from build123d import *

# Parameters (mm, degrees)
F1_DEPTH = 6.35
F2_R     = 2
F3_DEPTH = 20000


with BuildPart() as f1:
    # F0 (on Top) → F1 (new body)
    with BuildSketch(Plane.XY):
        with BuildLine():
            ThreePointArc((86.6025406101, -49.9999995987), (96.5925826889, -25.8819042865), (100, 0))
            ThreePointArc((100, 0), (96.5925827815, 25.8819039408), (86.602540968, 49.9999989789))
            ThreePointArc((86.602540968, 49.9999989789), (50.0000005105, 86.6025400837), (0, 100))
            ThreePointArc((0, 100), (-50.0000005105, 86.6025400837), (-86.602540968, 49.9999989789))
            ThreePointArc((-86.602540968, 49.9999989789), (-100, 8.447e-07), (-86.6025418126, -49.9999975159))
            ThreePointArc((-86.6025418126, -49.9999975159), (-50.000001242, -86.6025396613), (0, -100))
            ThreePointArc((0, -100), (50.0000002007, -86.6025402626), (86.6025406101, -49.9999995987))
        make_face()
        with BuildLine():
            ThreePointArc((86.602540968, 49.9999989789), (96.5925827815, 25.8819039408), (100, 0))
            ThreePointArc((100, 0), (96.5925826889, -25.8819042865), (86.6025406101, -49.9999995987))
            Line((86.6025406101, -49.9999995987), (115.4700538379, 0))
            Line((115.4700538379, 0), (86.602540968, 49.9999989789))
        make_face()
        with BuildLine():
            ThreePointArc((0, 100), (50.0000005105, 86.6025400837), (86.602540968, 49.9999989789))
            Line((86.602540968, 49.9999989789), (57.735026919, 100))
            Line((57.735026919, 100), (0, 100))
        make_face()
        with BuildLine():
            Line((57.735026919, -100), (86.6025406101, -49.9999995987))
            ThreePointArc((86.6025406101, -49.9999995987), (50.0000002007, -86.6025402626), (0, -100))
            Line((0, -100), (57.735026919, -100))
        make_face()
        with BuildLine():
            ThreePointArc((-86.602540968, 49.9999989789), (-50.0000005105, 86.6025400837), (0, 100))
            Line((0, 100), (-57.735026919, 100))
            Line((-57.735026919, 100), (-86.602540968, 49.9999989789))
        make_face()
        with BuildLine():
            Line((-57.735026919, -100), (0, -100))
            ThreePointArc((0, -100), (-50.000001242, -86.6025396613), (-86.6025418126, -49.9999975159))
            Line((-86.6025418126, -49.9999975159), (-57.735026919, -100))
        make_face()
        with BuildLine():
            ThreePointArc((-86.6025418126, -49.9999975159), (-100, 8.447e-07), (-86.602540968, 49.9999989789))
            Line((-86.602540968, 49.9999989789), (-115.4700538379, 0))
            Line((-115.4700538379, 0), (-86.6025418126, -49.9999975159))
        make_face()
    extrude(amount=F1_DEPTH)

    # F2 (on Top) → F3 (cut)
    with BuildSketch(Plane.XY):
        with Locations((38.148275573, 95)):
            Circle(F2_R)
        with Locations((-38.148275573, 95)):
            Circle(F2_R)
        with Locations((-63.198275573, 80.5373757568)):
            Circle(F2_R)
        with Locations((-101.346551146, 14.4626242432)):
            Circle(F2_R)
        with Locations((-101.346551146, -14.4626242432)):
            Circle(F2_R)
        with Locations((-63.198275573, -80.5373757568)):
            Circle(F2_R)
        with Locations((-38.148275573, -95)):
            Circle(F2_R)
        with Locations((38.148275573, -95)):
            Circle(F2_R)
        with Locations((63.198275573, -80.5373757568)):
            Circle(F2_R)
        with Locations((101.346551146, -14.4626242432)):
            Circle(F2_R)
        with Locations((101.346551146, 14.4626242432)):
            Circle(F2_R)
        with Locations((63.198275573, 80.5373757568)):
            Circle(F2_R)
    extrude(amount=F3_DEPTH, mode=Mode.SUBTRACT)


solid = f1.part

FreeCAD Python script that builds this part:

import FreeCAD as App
import Part
import Sketcher
Q = App.Units.Quantity


def add_polygon(sketch, points):
    """Adds a closed chain of lines whose ends are joined by coincident constraints."""
    first, n = sketch.GeometryCount, len(points)
    for a, b in zip(points, points[1:] + points[:1]):
        sketch.addGeometry(Part.LineSegment(App.Vector(*a, 0), App.Vector(*b, 0)), False)
    for i in range(n):
        sketch.addConstraint(Sketcher.Constraint("Coincident", first + i, 2, first + (i + 1) % n, 1))

doc = App.newDocument("Part")
body = doc.addObject("PartDesign::Body", "Body")

# Sketch on XY plane
sketch1 = body.newObject("Sketcher::SketchObject", "Sketch")
sketch1.AttachmentSupport = (doc.getObject("XY_Plane"), [""])
sketch1.MapMode = "FlatFace"
add_polygon(sketch1, [(-86.602542, -49.999998), (-57.735027, -100), (57.735027, -100), (86.602541, -50), (115.470054, 0), (57.735027, 100), (-57.735027, 100), (-115.470054, 0)])  # lines 0-7
sketch1.addConstraint(Sketcher.Constraint("Horizontal", 1))
sketch1.addConstraint(Sketcher.Constraint("Horizontal", 5))
sketch1.addConstraint(Sketcher.Constraint("Symmetric", 0, 2, 4, 2, -1, 1))
sketch1.addConstraint(Sketcher.Constraint("Symmetric", 3, 2, 6, 2, -1, 1))
sketch1.addConstraint(Sketcher.Constraint("Symmetric", 2, 2, 7, 2, -2))
sketch1.addConstraint(Sketcher.Constraint("PointOnObject", 3, 2, -1))
sketch1.addConstraint(Sketcher.Constraint("Parallel", 2, 3))
sketch1.addConstraint(Sketcher.Constraint("Parallel", 0, 4))
sketch1.addConstraint(Sketcher.Constraint("Parallel", 3, 6))
sketch1.addConstraint(Sketcher.Constraint("Equal", 2, 3))
sketch1.addConstraint(Sketcher.Constraint("Angle", 0, Q("-60 deg")))
sketch1.addConstraint(Sketcher.Constraint("DistanceY", 0, 2, -1, 1, 100.0))
sketch1.addConstraint(Sketcher.Constraint("DistanceX", 1, 1, 1, 2, 115.470054))
pad1 = body.newObject("PartDesign::Pad", "Pad")
pad1.Profile = sketch1
pad1.Length = 6.35

# Sketch on XY plane
sketch2 = body.newObject("Sketcher::SketchObject", "Sketch001")
sketch2.AttachmentSupport = (doc.getObject("XY_Plane"), [""])
sketch2.MapMode = "FlatFace"
sketch2.addGeometry(Part.Circle(App.Vector(38.148276, 95, 0), App.Vector(0, 0, 1), 2), False)
sketch2.addGeometry(Part.Circle(App.Vector(-38.148276, 95, 0), App.Vector(0, 0, 1), 2), False)
sketch2.addGeometry(Part.Circle(App.Vector(-63.198276, 80.537376, 0), App.Vector(0, 0, 1), 2), False)
sketch2.addGeometry(Part.Circle(App.Vector(-101.346551, 14.462624, 0), App.Vector(0, 0, 1), 2), False)
sketch2.addGeometry(Part.Circle(App.Vector(-101.346551, -14.462624, 0), App.Vector(0, 0, 1), 2), False)
sketch2.addGeometry(Part.Circle(App.Vector(-63.198276, -80.537376, 0), App.Vector(0, 0, 1), 2), False)
sketch2.addGeometry(Part.Circle(App.Vector(-38.148276, -95, 0), App.Vector(0, 0, 1), 2), False)
sketch2.addGeometry(Part.Circle(App.Vector(38.148276, -95, 0), App.Vector(0, 0, 1), 2), False)
sketch2.addGeometry(Part.Circle(App.Vector(63.198276, -80.537376, 0), App.Vector(0, 0, 1), 2), False)
sketch2.addGeometry(Part.Circle(App.Vector(101.346551, -14.462624, 0), App.Vector(0, 0, 1), 2), False)
sketch2.addGeometry(Part.Circle(App.Vector(101.346551, 14.462624, 0), App.Vector(0, 0, 1), 2), False)
sketch2.addGeometry(Part.Circle(App.Vector(63.198276, 80.537376, 0), App.Vector(0, 0, 1), 2), False)
sketch2.addConstraint(Sketcher.Constraint("Equal", 0, 1))
sketch2.addConstraint(Sketcher.Constraint("Equal", 1, 2))
sketch2.addConstraint(Sketcher.Constraint("Equal", 2, 3))
sketch2.addConstraint(Sketcher.Constraint("Equal", 3, 4))
sketch2.addConstraint(Sketcher.Constraint("Equal", 4, 5))
sketch2.addConstraint(Sketcher.Constraint("Equal", 5, 6))
sketch2.addConstraint(Sketcher.Constraint("Equal", 6, 7))
sketch2.addConstraint(Sketcher.Constraint("Equal", 7, 8))
sketch2.addConstraint(Sketcher.Constraint("Equal", 8, 9))
sketch2.addConstraint(Sketcher.Constraint("Equal", 9, 10))
sketch2.addConstraint(Sketcher.Constraint("Equal", 10, 11))
sketch2.addConstraint(Sketcher.Constraint("Symmetric", 0, 3, 6, 3, -1, 1))
sketch2.addConstraint(Sketcher.Constraint("Symmetric", 1, 3, 7, 3, -1, 1))
sketch2.addConstraint(Sketcher.Constraint("Symmetric", 2, 3, 8, 3, -1, 1))
sketch2.addConstraint(Sketcher.Constraint("Symmetric", 3, 3, 9, 3, -1, 1))
sketch2.addConstraint(Sketcher.Constraint("Symmetric", 4, 3, 10, 3, -1, 1))
sketch2.addConstraint(Sketcher.Constraint("Symmetric", 5, 3, 11, 3, -1, 1))
sketch2.addConstraint(Sketcher.Constraint("Symmetric", 0, 3, 1, 3, -2))
sketch2.addConstraint(Sketcher.Constraint("Symmetric", 5, 3, 8, 3, -2))
sketch2.addConstraint(Sketcher.Constraint("Symmetric", 4, 3, 9, 3, -2))
sketch2.addConstraint(Sketcher.Constraint("Diameter", 0, 4.0))
sketch2.addConstraint(Sketcher.Constraint("DistanceY", -1, 1, 0, 3, 95.0))
sketch2.addConstraint(Sketcher.Constraint("DistanceY", 4, 3, 2, 3, 95.0))
sketch2.addConstraint(Sketcher.Constraint("DistanceX", 2, 3, 1, 3, 25.05))
sketch2.addConstraint(Sketcher.Constraint("DistanceX", 3, 3, -1, 1, 101.346551))
sketch2.addConstraint(Sketcher.Constraint("DistanceX", 1, 3, 0, 3, 76.296551))
sketch2.addConstraint(Sketcher.Constraint("DistanceY", 3, 3, 2, 3, 66.074752))
pocket1 = body.newObject("PartDesign::Pocket", "Pocket")
pocket1.Profile = sketch2
pocket1.Length = 20000
pocket1.Reversed = True

doc.recompute()
